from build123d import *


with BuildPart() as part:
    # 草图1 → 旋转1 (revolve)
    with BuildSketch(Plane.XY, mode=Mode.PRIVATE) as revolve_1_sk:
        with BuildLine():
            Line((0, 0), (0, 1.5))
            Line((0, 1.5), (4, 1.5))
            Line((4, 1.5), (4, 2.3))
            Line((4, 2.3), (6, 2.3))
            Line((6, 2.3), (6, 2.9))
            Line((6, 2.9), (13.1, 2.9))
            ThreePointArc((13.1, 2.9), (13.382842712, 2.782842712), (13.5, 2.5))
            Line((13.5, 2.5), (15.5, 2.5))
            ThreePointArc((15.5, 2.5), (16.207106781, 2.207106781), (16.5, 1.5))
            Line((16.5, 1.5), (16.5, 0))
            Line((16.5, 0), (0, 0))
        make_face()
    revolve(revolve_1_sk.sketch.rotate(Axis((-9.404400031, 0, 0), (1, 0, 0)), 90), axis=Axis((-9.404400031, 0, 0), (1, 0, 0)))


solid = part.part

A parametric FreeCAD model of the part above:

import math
import FreeCAD as App
import Part
import Sketcher

V = App.Vector
Q = App.Units.Quantity

doc = App.newDocument("Part")
body = doc.addObject("PartDesign::Body", "Body")

# Sketch on XY plane
sketch1 = doc.addObject("Sketcher::SketchObject", "Sketch")
body.addObject(sketch1)
sketch1.AttachmentSupport = (doc.XY_Plane, [""])
sketch1.MapMode = "FlatFace"
sketch1.addGeometry(Part.LineSegment(V(0, 1.5, 0), V(0, 0, 0)), False)
sketch1.addGeometry(Part.LineSegment(V(0, 0, 0), V(16.5, 0, 0)), False)
sketch1.addGeometry(Part.LineSegment(V(16.5, 0, 0), V(16.5, 1.5, 0)), False)
sketch1.addGeometry(Part.ArcOfCircle(Part.Circle(V(15.5, 1.5, 0), V(0, 0, 1), 1), math.radians(0), math.radians(90)), False)
sketch1.addGeometry(Part.LineSegment(V(15.5, 2.5, 0), V(13.5, 2.5, 0)), False)
sketch1.addGeometry(Part.ArcOfCircle(Part.Circle(V(13.1, 2.5, 0), V(0, 0, 1), 0.4), math.radians(0), math.radians(90)), False)
sketch1.addGeometry(Part.LineSegment(V(13.1, 2.9, 0), V(6, 2.9, 0)), False)
sketch1.addGeometry(Part.LineSegment(V(6, 2.9, 0), V(6, 2.3, 0)), False)
sketch1.addGeometry(Part.LineSegment(V(6, 2.3, 0), V(4, 2.3, 0)), False)
sketch1.addGeometry(Part.LineSegment(V(4, 2.3, 0), V(4, 1.5, 0)), False)
sketch1.addGeometry(Part.LineSegment(V(4, 1.5, 0), V(0, 1.5, 0)), False)
sketch1.addConstraint(Sketcher.Constraint("Coincident", 0, 2, 1, 1))
sketch1.addConstraint(Sketcher.Constraint("Coincident", 1, 2, 2, 1))
sketch1.addConstraint(Sketcher.Constraint("Tangent", 2, 2, 3, 1))
sketch1.addConstraint(Sketcher.Constraint("Tangent", 3, 2, 4, 1))
sketch1.addConstraint(Sketcher.Constraint("Coincident", 4, 2, 5, 1))
sketch1.addConstraint(Sketcher.Constraint("Tangent", 5, 2, 6, 1))
sketch1.addConstraint(Sketcher.Constraint("Coincident", 6, 2, 7, 1))
sketch1.addConstraint(Sketcher.Constraint("Coincident", 7, 2, 8, 1))
sketch1.addConstraint(Sketcher.Constraint("Coincident", 8, 2, 9, 1))
sketch1.addConstraint(Sketcher.Constraint("Coincident", 9, 2, 10, 1))
sketch1.addConstraint(Sketcher.Constraint("Coincident", 10, 2, 0, 1))
sketch1.addConstraint(Sketcher.Constraint("Vertical", 0))
sketch1.addConstraint(Sketcher.Constraint("Horizontal", 1))
sketch1.addConstraint(Sketcher.Constraint("Vertical", 2))
sketch1.addConstraint(Sketcher.Constraint("Horizontal", 4))
sketch1.addConstraint(Sketcher.Constraint("Horizontal", 6))
sketch1.addConstraint(Sketcher.Constraint("Vertical", 7))
sketch1.addConstraint(Sketcher.Constraint("Horizontal", 8))
sketch1.addConstraint(Sketcher.Constraint("Vertical", 9))
sketch1.addConstraint(Sketcher.Constraint("Horizontal", 10))
sketch1.addConstraint(Sketcher.Constraint("Coincident", 0, 2, -1, 1))
sketch1.addConstraint(Sketcher.Constraint("Horizontal", 5, 3, 3, 2))
sketch1.addConstraint(Sketcher.Constraint("Horizontal", 2, 2, 9, 2))
sketch1.addConstraint(Sketcher.Constraint("Equal", 4, 8))
sketch1.addConstraint(Sketcher.Constraint("Radius", 3, Q("1 mm")))
sketch1.addConstraint(Sketcher.Constraint("Radius", 5, Q("0.4 mm")))
sketch1.addConstraint(Sketcher.Constraint("DistanceX", 4, 2, 4, 1, Q("2 mm")))
sketch1.addConstraint(Sketcher.Constraint("DistanceX", 10, 2, 10, 1, Q("4 mm")))
sketch1.addConstraint(Sketcher.Constraint("DistanceX", 1, 1, 1, 2, Q("16.5 mm")))
sketch1.addConstraint(Sketcher.Constraint("DistanceY", 0, 2, 0, 1, Q("1.5 mm")))
sketch1.addConstraint(Sketcher.Constraint("DistanceY", 7, 2, 7, 1, Q("0.6 mm")))
revolution = doc.addObject("PartDesign::Revolution", "Revolution")
body.addObject(revolution)
revolution.Profile = sketch1
revolution.ReferenceAxis = (sketch1, ["H_Axis"])
revolution.Angle = 360

doc.recompute()
